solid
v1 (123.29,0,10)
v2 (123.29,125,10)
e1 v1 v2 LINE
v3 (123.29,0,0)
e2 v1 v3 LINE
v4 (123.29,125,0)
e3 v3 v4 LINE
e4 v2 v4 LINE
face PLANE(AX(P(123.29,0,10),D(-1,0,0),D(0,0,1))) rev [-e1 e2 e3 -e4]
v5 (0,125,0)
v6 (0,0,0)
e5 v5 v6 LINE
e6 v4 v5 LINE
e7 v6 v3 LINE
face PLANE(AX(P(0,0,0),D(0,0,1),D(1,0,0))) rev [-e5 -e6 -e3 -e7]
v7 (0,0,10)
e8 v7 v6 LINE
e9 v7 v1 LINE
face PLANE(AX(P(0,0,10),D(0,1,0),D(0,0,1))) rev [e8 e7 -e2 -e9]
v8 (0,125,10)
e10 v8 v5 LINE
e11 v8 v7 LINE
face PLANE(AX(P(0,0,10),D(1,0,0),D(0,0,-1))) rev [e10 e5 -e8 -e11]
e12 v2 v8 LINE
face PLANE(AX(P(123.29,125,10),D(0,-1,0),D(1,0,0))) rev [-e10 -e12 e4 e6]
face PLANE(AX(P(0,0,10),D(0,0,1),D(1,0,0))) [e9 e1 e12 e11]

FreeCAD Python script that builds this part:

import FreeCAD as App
import Part
import Sketcher
from FreeCAD import Vector


def add_polygon(sketch, points):
    """Adds a closed chain of lines whose ends are joined by coincident constraints."""
    first, n = sketch.GeometryCount, len(points)
    for a, b in zip(points, points[1:] + points[:1]):
        sketch.addGeometry(Part.LineSegment(App.Vector(*a, 0), App.Vector(*b, 0)), False)
    for i in range(n):
        sketch.addConstraint(Sketcher.Constraint("Coincident", first + i, 2, first + (i + 1) % n, 1))

doc = App.newDocument("Part")
params = doc.addObject("Spreadsheet::Sheet", "Params")
for row, (alias, value) in enumerate([
    ("sketch1_height", "125 mm"),
    ("sketch1_width", "123.29 mm"),
    ("pad1_length", "10 mm"),
], start=1):
    params.set(f"A{row}", alias)
    params.set(f"B{row}", "=" + value)
    params.setAlias(f"B{row}", alias)

body = doc.addObject("PartDesign::Body", "Body")

# Sketch on XY plane
sketch1 = body.newObject("Sketcher::SketchObject", "Sketch")
sketch1.AttachmentSupport = (doc.getObject("XY_Plane"), [""])
sketch1.MapMode = "FlatFace"
add_polygon(sketch1, [(0, 125), (0, 0), (123, 0), (123, 125)])  # lines 0-3
sketch1.addConstraint([
    Sketcher.Constraint("Vertical", 0),
    Sketcher.Constraint("Horizontal", 1),
    Sketcher.Constraint("Vertical", 2),
    Sketcher.Constraint("Horizontal", 3),
    Sketcher.Constraint("Coincident", 0, 2, -1, 1),
    Sketcher.Constraint("DistanceY", 0, 2, 0, 1, 125.0),
    Sketcher.Constraint("DistanceX", 1, 1, 1, 2, 123.29),
])
sketch1.setExpression("Constraints[9]", "Params.sketch1_height")
sketch1.setExpression("Constraints[10]", "Params.sketch1_width")
pad1 = body.newObject("PartDesign::Pad", "Pad")
pad1.Profile = sketch1
pad1.setExpression("Length", "Params.pad1_length")

doc.recompute()
